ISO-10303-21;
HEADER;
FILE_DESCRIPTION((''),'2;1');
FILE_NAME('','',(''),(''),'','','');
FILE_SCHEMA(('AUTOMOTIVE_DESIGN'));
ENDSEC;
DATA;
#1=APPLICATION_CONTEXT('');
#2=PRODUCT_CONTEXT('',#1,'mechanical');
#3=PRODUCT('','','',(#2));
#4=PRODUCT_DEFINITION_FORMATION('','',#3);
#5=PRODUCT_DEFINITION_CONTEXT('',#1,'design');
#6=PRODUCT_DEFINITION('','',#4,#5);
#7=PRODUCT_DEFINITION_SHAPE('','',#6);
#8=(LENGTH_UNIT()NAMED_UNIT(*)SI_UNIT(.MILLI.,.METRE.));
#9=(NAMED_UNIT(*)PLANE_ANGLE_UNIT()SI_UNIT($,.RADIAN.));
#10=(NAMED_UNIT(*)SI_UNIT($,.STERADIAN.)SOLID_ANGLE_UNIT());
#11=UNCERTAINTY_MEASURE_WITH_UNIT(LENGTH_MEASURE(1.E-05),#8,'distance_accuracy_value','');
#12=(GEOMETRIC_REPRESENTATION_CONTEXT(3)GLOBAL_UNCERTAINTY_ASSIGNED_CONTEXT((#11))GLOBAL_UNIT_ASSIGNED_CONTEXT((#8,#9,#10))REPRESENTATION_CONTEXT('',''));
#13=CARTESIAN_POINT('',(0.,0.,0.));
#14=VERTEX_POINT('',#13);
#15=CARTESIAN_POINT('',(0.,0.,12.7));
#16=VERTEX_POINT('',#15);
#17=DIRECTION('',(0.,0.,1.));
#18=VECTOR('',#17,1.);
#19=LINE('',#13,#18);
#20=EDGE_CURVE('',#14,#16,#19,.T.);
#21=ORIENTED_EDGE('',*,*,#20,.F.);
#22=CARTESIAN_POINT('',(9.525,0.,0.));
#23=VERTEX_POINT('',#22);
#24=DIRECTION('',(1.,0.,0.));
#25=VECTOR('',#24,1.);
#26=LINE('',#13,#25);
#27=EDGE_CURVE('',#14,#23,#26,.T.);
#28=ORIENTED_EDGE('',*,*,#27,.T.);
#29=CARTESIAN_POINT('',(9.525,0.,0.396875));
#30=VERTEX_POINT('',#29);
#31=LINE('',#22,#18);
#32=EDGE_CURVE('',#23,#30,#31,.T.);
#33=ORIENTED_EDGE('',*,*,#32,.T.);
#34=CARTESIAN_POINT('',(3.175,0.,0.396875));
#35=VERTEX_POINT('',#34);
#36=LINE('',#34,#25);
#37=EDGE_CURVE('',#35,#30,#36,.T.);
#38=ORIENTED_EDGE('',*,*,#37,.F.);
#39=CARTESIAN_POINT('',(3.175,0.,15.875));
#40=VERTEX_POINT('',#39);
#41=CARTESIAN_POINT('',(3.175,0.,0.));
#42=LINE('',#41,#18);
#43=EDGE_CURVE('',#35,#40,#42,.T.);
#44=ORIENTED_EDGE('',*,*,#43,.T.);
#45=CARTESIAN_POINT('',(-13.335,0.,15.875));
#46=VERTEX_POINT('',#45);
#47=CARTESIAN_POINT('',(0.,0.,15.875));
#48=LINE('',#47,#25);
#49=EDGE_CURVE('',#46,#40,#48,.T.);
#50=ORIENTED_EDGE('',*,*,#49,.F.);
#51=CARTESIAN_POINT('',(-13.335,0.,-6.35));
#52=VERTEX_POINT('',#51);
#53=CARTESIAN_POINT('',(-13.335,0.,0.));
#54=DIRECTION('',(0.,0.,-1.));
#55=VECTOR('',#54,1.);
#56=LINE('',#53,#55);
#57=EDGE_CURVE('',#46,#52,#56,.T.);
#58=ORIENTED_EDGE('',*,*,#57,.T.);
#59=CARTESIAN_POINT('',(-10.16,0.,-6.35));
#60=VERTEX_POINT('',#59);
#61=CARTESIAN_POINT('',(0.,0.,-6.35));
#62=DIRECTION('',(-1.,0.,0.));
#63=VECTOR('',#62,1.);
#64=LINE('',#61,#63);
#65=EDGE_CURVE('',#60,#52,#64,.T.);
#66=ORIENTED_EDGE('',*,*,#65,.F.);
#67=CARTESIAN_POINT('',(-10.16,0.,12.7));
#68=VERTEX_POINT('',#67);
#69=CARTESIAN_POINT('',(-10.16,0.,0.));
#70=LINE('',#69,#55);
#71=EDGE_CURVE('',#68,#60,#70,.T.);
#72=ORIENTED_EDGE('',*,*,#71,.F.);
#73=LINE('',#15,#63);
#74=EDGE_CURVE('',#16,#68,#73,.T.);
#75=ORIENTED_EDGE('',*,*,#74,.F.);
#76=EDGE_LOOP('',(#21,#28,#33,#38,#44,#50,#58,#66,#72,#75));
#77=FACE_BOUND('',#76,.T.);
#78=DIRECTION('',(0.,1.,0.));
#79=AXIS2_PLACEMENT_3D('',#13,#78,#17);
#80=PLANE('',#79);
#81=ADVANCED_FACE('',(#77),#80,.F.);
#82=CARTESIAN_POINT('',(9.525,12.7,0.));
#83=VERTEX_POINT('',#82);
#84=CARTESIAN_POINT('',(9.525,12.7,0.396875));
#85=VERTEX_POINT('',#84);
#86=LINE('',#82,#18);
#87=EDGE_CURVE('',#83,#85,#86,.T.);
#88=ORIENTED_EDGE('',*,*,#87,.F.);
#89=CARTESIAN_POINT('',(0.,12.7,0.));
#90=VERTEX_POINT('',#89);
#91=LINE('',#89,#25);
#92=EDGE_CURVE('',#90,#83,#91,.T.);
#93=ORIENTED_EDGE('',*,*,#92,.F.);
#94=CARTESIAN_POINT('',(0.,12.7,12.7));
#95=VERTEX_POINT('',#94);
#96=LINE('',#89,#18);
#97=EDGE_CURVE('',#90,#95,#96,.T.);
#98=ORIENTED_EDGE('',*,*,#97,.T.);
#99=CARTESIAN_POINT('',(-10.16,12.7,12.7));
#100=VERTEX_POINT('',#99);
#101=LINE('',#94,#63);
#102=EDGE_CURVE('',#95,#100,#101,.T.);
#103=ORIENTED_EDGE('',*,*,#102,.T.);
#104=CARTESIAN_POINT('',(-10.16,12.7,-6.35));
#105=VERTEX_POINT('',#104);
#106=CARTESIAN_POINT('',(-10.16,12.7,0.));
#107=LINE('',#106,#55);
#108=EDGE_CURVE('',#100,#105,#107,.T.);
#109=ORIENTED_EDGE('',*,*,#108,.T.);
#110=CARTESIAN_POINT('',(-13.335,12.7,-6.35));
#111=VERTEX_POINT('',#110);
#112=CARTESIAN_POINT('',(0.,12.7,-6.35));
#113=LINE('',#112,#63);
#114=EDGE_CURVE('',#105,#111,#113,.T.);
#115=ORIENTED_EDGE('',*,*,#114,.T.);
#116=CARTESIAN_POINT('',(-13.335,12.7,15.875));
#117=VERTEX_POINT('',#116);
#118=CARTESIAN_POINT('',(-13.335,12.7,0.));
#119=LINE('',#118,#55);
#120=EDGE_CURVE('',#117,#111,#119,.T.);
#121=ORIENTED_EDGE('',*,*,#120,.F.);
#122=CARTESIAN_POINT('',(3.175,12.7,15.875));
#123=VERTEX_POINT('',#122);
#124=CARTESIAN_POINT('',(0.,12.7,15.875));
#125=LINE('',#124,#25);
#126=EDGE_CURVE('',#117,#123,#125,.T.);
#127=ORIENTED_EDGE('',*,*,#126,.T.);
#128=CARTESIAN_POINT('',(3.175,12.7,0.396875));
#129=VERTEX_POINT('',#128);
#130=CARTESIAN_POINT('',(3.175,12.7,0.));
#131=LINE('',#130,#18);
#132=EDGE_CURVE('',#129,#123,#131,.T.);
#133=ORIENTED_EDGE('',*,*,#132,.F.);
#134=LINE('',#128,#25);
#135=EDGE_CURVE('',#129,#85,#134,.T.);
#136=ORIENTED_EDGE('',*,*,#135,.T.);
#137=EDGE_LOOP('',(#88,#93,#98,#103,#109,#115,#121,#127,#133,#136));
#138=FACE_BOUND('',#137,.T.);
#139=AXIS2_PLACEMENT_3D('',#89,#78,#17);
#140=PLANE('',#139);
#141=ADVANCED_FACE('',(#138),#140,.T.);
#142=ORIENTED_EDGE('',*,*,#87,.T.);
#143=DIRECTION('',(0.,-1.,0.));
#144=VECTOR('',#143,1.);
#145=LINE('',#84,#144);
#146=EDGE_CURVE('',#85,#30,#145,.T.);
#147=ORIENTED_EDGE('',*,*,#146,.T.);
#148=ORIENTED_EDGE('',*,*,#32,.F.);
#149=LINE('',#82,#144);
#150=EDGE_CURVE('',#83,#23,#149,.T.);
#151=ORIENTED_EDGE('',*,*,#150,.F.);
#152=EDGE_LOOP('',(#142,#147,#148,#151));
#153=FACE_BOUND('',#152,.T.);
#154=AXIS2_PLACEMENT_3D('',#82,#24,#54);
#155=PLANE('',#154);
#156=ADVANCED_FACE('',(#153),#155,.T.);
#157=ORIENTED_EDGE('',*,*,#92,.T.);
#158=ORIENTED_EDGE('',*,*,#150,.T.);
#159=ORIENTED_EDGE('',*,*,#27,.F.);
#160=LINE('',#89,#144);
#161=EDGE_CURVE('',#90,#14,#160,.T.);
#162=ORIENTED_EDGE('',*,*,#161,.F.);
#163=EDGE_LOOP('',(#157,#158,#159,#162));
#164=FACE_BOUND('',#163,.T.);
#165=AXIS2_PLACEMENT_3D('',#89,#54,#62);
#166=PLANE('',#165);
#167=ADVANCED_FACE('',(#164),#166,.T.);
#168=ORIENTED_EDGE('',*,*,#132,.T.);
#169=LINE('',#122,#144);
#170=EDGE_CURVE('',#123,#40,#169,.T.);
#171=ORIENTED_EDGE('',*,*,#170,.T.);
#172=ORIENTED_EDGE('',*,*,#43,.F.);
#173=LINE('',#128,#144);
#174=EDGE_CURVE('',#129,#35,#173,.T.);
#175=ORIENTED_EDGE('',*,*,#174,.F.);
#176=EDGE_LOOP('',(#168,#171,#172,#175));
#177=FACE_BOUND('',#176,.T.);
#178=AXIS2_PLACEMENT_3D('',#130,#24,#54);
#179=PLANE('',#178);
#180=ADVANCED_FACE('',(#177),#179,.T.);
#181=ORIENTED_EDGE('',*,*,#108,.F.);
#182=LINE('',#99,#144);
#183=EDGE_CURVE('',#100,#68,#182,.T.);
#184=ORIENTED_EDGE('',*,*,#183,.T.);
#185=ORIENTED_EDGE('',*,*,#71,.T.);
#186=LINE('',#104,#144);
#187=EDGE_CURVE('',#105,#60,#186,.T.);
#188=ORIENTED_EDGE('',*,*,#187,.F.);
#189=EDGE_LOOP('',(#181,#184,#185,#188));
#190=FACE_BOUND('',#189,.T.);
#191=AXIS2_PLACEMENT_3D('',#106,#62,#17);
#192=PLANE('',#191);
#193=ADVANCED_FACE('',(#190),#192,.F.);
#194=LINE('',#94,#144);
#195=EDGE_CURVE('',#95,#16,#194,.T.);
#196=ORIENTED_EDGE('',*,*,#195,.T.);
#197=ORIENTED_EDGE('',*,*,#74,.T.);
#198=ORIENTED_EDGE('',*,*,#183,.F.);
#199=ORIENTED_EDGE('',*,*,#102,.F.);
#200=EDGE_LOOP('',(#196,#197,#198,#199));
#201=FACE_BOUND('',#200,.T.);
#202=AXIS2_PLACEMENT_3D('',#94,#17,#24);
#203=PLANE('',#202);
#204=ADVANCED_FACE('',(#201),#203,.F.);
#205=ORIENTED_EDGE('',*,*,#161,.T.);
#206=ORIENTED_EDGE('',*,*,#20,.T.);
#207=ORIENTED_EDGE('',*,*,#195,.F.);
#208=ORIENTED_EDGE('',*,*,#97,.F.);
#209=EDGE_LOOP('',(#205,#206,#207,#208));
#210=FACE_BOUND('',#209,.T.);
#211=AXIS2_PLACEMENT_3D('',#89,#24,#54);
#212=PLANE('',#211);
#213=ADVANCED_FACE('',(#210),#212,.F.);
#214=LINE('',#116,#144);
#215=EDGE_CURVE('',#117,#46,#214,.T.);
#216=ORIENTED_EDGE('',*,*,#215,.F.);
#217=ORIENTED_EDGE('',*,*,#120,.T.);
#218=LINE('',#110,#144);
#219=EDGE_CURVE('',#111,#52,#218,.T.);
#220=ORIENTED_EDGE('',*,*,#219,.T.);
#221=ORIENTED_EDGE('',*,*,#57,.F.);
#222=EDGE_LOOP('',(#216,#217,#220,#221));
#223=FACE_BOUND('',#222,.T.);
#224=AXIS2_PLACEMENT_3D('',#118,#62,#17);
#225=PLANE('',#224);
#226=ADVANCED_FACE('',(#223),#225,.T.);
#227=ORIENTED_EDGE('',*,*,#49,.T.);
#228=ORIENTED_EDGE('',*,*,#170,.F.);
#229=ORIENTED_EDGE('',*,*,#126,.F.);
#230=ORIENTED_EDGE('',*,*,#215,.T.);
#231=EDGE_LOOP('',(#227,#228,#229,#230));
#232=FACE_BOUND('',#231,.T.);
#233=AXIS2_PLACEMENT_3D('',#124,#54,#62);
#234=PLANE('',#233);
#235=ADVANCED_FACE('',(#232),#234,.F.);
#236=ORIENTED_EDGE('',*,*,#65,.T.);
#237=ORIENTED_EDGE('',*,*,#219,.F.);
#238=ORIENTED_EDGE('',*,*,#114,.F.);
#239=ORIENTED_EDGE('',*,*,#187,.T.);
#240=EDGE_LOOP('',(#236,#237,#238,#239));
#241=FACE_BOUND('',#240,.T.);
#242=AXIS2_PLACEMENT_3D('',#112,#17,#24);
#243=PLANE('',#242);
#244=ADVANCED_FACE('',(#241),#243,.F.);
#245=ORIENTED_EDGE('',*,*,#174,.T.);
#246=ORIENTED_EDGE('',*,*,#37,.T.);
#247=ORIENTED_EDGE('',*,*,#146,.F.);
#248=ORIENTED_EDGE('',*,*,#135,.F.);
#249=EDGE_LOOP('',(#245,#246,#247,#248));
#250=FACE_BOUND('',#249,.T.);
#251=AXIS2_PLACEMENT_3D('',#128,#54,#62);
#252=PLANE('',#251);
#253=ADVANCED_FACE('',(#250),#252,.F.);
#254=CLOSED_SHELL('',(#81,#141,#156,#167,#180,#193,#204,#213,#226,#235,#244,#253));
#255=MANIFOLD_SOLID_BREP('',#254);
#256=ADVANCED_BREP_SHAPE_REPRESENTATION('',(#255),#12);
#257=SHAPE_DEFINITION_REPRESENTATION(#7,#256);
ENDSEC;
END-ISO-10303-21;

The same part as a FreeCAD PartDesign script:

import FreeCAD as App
import Part
import Sketcher

V = App.Vector
Q = App.Units.Quantity

doc = App.newDocument("Part")
body = doc.addObject("PartDesign::Body", "Body")

# Sketch on XZ plane
sketch1 = body.newObject("Sketcher::SketchObject", "Sketch")
sketch1.AttachmentSupport = (doc.getObject("XZ_Plane"), [""])
sketch1.MapMode = "FlatFace"
sketch1.addGeometry([
    Part.LineSegment(V(-13.335, -6.35, 0), V(-13.335, 15.875, 0)),  # 0
    Part.LineSegment(V(-13.335, 15.875, 0), V(3.175, 15.875, 0)),  # 1
    Part.LineSegment(V(3.175, 15.875, 0), V(3.175, 0.396875, 0)),  # 2
    Part.LineSegment(V(3.175, 0.396875, 0), V(9.525, 0.396875, 0)),  # 3
    Part.LineSegment(V(9.525, 0.396875, 0), V(9.525, 0, 0)),  # 4
    Part.LineSegment(V(9.525, 0, 0), V(0, 0, 0)),  # 5
    Part.LineSegment(V(0, 0, 0), V(0, 12.7, 0)),  # 6
    Part.LineSegment(V(0, 12.7, 0), V(-10.16, 12.7, 0)),  # 7
    Part.LineSegment(V(-10.16, 12.7, 0), V(-10.16, -6.35, 0)),  # 8
    Part.LineSegment(V(-10.16, -6.35, 0), V(-13.335, -6.35, 0)),  # 9
], False)
sketch1.addConstraint([
    Sketcher.Constraint("Coincident", 0, 2, 1, 1),
    Sketcher.Constraint("Coincident", 1, 2, 2, 1),
    Sketcher.Constraint("Coincident", 2, 2, 3, 1),
    Sketcher.Constraint("Coincident", 3, 2, 4, 1),
    Sketcher.Constraint("Coincident", 4, 2, 5, 1),
    Sketcher.Constraint("Coincident", 5, 2, 6, 1),
    Sketcher.Constraint("Coincident", 6, 2, 7, 1),
    Sketcher.Constraint("Coincident", 7, 2, 8, 1),
    Sketcher.Constraint("Coincident", 8, 2, 9, 1),
    Sketcher.Constraint("Coincident", 9, 2, 0, 1),
    Sketcher.Constraint("Vertical", 0),
    Sketcher.Constraint("Horizontal", 1),
    Sketcher.Constraint("Vertical", 2),
    Sketcher.Constraint("Horizontal", 3),
    Sketcher.Constraint("Vertical", 4),
    Sketcher.Constraint("Horizontal", 5),
    Sketcher.Constraint("Vertical", 6),
    Sketcher.Constraint("Horizontal", 7),
    Sketcher.Constraint("Vertical", 8),
    Sketcher.Constraint("Horizontal", 9),
    Sketcher.Constraint("Coincident", 5, 2, -1, 1),
    Sketcher.Constraint("DistanceX", 7, 2, 7, 1, Q("0.4 in")),
    Sketcher.Constraint("DistanceY", 6, 1, 6, 2, Q("0.5 in")),
    Sketcher.Constraint("DistanceX", 1, 1, 1, 2, Q("0.65 in")),
    Sketcher.Constraint("DistanceX", 3, 1, 3, 2, Q("0.25 in")),
    Sketcher.Constraint("DistanceY", 8, 2, 8, 1, Q("0.75 in")),
    Sketcher.Constraint("DistanceX", 5, 2, 5, 1, Q("0.375 in")),
    Sketcher.Constraint("DistanceY", 0, 1, 0, 2, Q("0.875 in")),
    Sketcher.Constraint("DistanceY", 2, 2, 2, 1, Q("0.609375 in")),
])
pad1 = body.newObject("PartDesign::Pad", "Pad")
pad1.Profile = sketch1
pad1.Length = Q("0.5 in")
pad1.Reversed = True

doc.recompute()
